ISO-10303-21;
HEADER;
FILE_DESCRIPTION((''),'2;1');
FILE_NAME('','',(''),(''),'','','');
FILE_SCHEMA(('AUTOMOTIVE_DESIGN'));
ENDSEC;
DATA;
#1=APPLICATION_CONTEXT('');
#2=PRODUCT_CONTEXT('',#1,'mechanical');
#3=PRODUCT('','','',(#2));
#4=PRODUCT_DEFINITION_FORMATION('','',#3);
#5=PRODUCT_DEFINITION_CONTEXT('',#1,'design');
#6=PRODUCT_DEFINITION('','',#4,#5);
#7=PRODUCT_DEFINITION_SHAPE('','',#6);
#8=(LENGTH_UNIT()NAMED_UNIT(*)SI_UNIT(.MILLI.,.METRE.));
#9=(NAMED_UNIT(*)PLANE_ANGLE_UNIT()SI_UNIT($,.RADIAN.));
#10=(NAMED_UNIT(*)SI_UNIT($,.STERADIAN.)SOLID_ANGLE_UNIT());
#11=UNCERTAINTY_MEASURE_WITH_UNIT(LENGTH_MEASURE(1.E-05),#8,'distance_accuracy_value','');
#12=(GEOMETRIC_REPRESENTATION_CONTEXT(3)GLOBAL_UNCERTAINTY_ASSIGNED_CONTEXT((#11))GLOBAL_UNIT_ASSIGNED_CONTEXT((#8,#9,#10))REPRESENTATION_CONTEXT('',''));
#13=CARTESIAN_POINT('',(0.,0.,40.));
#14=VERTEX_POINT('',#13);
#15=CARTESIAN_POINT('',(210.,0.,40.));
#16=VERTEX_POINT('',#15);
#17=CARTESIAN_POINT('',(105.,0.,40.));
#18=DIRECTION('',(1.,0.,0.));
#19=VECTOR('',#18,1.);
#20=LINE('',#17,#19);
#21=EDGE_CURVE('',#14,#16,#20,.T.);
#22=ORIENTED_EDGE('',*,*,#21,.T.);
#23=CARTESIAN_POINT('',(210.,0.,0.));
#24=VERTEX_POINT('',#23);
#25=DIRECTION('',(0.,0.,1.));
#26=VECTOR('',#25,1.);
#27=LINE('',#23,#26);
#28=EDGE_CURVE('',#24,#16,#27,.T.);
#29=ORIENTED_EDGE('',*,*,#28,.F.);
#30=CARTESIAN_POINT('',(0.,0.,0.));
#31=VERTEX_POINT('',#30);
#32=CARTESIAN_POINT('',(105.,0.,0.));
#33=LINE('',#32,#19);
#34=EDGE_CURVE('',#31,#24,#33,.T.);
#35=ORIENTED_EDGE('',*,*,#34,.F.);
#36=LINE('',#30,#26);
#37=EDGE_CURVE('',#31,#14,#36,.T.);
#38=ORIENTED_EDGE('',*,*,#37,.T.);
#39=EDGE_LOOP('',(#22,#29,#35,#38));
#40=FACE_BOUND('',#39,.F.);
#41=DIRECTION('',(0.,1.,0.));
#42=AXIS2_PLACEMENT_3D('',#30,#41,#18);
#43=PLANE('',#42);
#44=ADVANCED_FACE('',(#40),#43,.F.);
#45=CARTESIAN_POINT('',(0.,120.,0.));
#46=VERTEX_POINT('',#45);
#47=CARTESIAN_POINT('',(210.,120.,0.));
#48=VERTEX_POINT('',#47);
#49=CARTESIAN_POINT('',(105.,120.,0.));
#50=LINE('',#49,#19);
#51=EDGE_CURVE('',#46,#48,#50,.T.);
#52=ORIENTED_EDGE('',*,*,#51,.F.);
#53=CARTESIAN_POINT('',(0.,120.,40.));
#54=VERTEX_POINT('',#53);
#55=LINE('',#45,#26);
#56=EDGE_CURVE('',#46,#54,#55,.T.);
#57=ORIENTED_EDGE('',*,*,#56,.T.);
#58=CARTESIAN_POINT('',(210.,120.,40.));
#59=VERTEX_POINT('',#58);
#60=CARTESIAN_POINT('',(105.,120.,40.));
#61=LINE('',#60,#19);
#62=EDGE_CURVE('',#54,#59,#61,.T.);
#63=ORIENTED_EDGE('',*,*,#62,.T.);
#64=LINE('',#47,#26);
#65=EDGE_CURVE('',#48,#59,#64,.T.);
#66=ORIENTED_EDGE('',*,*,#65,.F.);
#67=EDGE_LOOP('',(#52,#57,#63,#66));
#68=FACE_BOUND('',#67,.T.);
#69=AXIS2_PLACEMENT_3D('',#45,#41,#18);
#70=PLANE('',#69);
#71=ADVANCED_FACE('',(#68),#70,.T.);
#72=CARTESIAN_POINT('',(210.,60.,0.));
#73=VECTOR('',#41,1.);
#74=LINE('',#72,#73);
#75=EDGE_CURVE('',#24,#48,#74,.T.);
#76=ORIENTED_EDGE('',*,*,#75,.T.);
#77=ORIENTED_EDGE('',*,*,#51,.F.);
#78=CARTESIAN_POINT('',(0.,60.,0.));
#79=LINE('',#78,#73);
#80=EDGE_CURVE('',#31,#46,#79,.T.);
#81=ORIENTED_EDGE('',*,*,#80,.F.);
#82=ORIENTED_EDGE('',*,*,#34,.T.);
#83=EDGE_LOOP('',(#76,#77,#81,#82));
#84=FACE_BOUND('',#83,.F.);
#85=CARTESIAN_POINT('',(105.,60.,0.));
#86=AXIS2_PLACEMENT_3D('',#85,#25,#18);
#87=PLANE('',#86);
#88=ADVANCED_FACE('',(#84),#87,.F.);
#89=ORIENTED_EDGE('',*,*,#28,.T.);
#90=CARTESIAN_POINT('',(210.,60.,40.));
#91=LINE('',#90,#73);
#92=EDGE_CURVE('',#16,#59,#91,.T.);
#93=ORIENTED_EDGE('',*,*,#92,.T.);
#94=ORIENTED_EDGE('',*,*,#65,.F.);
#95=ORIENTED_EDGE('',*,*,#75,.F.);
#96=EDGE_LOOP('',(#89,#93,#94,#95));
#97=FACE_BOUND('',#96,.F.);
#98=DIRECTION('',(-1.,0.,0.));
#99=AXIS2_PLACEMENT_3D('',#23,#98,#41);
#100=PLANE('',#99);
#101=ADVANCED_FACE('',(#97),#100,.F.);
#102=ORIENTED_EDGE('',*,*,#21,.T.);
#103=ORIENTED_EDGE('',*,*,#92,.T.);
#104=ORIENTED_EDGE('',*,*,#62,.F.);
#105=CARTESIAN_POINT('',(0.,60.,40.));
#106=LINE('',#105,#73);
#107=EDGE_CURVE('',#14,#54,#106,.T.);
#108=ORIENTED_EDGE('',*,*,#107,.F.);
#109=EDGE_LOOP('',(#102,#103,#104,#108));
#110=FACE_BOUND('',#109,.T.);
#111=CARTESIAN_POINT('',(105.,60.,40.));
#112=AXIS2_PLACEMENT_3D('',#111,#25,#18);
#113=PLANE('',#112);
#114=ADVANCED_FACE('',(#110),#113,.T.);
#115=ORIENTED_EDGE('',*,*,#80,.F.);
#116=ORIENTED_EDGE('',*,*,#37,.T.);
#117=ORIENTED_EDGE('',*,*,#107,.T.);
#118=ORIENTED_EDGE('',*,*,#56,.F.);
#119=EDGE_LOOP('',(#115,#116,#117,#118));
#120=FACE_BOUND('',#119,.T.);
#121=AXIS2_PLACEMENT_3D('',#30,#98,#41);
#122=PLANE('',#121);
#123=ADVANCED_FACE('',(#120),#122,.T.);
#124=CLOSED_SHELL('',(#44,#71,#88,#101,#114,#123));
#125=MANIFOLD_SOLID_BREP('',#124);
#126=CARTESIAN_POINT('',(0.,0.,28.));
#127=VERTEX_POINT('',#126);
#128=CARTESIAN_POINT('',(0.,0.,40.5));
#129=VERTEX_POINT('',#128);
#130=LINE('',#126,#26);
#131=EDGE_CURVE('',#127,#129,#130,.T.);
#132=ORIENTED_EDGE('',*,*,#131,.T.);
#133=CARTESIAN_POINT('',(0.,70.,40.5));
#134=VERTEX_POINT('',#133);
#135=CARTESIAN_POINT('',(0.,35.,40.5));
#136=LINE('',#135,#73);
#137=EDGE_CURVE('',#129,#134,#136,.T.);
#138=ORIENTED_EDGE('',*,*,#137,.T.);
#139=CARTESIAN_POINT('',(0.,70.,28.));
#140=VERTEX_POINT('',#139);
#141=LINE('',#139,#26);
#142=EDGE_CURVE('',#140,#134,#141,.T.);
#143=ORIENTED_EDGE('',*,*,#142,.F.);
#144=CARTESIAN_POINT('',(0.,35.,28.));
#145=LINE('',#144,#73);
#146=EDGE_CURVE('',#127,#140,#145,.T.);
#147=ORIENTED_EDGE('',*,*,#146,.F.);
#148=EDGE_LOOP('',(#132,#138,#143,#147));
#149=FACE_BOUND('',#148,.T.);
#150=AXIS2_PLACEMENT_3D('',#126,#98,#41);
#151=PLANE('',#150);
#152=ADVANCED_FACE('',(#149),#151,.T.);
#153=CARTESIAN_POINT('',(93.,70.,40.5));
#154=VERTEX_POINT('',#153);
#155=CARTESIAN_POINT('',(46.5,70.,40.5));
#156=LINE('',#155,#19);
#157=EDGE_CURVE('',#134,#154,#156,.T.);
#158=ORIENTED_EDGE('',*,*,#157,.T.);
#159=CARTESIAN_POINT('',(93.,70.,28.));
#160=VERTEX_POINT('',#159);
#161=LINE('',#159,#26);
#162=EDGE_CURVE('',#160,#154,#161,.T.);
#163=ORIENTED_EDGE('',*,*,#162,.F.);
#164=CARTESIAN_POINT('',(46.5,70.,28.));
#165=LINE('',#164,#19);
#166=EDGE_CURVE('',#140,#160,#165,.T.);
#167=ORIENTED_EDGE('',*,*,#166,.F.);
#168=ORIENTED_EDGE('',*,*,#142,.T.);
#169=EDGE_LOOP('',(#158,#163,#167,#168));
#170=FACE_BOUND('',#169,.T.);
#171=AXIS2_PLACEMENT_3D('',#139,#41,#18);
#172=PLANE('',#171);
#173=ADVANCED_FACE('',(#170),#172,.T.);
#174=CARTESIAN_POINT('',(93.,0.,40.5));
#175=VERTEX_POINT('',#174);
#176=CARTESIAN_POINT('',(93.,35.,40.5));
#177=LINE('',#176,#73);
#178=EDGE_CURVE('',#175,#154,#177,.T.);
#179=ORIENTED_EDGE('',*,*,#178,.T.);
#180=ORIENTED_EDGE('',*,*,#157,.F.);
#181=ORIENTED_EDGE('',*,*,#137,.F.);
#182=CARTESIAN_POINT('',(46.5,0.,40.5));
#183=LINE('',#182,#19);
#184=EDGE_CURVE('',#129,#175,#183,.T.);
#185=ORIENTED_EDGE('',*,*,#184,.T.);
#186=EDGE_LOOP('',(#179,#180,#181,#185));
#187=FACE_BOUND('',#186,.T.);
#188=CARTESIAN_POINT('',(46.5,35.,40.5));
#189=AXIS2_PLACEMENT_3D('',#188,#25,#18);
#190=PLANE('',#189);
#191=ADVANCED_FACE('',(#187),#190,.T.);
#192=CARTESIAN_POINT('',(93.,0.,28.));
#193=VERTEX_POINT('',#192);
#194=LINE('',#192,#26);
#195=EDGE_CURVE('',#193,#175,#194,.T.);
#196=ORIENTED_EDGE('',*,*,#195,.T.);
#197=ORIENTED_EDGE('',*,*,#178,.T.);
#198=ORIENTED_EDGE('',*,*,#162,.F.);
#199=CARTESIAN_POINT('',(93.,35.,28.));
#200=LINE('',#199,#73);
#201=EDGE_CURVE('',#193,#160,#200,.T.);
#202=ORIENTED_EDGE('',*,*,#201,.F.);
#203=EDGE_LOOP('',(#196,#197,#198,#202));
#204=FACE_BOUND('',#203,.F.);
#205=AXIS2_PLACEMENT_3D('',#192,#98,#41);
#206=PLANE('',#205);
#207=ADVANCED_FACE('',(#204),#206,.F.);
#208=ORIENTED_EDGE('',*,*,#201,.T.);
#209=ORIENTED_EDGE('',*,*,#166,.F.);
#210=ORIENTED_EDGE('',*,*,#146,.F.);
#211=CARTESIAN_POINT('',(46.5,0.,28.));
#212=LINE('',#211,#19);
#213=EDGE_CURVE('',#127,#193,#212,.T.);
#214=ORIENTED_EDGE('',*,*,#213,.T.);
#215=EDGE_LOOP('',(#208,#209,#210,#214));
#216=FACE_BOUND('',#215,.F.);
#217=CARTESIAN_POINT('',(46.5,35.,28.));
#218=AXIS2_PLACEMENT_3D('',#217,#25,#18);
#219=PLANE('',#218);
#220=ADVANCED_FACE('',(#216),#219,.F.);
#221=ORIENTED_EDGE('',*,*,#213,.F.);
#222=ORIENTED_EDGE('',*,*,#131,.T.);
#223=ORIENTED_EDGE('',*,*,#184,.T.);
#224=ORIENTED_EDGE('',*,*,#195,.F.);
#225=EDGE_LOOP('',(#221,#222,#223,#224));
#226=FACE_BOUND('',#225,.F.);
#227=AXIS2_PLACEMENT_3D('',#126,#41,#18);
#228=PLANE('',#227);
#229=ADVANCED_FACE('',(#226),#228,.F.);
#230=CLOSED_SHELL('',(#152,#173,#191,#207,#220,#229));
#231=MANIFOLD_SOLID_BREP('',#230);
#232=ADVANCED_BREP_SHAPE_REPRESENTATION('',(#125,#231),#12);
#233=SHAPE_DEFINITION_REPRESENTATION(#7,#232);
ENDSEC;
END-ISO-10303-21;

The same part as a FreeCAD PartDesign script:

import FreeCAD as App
import Part
import Sketcher
from FreeCAD import Vector

doc = App.newDocument("Part")
body = doc.addObject("PartDesign::Body", "Body")

# Sketch on XY plane
sketch1 = doc.addObject("Sketcher::SketchObject", "Sketch")
body.addObject(sketch1)
sketch1.AttachmentSupport = (doc.XY_Plane, [""])
sketch1.MapMode = "FlatFace"
sketch1.addGeometry([
    Part.LineSegment(Vector(0, 120, 0), Vector(0, 0, 0)),
    Part.LineSegment(Vector(0, 0, 0), Vector(210, 0, 0)),
    Part.LineSegment(Vector(210, 0, 0), Vector(210, 120, 0)),
    Part.LineSegment(Vector(210, 120, 0), Vector(0, 120, 0)),
], False)
sketch1.addConstraint([
    Sketcher.Constraint("Coincident", 0, 2, 1, 1),
    Sketcher.Constraint("Coincident", 1, 2, 2, 1),
    Sketcher.Constraint("Coincident", 2, 2, 3, 1),
    Sketcher.Constraint("Coincident", 3, 2, 0, 1),
    Sketcher.Constraint("Vertical", 0),
    Sketcher.Constraint("Horizontal", 1),
    Sketcher.Constraint("Vertical", 2),
    Sketcher.Constraint("Horizontal", 3),
    Sketcher.Constraint("Coincident", 0, 2, -1, 1),
    Sketcher.Constraint("DistanceX", 1, 1, 1, 2, 210.0),
    Sketcher.Constraint("DistanceY", 0, 2, 0, 1, 120.0),
])
pad1 = doc.addObject("PartDesign::Pad", "Pad")
body.addObject(pad1)
pad1.Profile = sketch1
pad1.Length = 40
body2 = doc.addObject("PartDesign::Body", "Body001")

# Sketch on XY plane
sketch2 = doc.addObject("Sketcher::SketchObject", "Sketch001")
body2.addObject(sketch2)
sketch2.AttachmentSupport = (doc.getObject("XY_Plane001"), [""])
sketch2.MapMode = "FlatFace"
sketch2.AttachmentOffset = App.Placement(Vector(0, 0, 28), App.Rotation())
sketch2.addGeometry([
    Part.LineSegment(Vector(0, 70, 0), Vector(0, 0, 0)),
    Part.LineSegment(Vector(0, 0, 0), Vector(93, 0, 0)),
    Part.LineSegment(Vector(93, 0, 0), Vector(93, 70, 0)),
    Part.LineSegment(Vector(93, 70, 0), Vector(0, 70, 0)),
], False)
sketch2.addConstraint([
    Sketcher.Constraint("Coincident", 0, 2, 1, 1),
    Sketcher.Constraint("Coincident", 1, 2, 2, 1),
    Sketcher.Constraint("Coincident", 2, 2, 3, 1),
    Sketcher.Constraint("Coincident", 3, 2, 0, 1),
    Sketcher.Constraint("Vertical", 0),
    Sketcher.Constraint("Horizontal", 1),
    Sketcher.Constraint("Vertical", 2),
    Sketcher.Constraint("Horizontal", 3),
    Sketcher.Constraint("Coincident", 0, 2, -1, 1),
    Sketcher.Constraint("DistanceX", 1, 1, 1, 2, 93.0),
    Sketcher.Constraint("DistanceY", 0, 2, 0, 1, 70.0),
])
pad2 = doc.addObject("PartDesign::Pad", "Pad001")
body2.addObject(pad2)
pad2.Profile = sketch2
pad2.Length = 12.5

doc.recompute()
